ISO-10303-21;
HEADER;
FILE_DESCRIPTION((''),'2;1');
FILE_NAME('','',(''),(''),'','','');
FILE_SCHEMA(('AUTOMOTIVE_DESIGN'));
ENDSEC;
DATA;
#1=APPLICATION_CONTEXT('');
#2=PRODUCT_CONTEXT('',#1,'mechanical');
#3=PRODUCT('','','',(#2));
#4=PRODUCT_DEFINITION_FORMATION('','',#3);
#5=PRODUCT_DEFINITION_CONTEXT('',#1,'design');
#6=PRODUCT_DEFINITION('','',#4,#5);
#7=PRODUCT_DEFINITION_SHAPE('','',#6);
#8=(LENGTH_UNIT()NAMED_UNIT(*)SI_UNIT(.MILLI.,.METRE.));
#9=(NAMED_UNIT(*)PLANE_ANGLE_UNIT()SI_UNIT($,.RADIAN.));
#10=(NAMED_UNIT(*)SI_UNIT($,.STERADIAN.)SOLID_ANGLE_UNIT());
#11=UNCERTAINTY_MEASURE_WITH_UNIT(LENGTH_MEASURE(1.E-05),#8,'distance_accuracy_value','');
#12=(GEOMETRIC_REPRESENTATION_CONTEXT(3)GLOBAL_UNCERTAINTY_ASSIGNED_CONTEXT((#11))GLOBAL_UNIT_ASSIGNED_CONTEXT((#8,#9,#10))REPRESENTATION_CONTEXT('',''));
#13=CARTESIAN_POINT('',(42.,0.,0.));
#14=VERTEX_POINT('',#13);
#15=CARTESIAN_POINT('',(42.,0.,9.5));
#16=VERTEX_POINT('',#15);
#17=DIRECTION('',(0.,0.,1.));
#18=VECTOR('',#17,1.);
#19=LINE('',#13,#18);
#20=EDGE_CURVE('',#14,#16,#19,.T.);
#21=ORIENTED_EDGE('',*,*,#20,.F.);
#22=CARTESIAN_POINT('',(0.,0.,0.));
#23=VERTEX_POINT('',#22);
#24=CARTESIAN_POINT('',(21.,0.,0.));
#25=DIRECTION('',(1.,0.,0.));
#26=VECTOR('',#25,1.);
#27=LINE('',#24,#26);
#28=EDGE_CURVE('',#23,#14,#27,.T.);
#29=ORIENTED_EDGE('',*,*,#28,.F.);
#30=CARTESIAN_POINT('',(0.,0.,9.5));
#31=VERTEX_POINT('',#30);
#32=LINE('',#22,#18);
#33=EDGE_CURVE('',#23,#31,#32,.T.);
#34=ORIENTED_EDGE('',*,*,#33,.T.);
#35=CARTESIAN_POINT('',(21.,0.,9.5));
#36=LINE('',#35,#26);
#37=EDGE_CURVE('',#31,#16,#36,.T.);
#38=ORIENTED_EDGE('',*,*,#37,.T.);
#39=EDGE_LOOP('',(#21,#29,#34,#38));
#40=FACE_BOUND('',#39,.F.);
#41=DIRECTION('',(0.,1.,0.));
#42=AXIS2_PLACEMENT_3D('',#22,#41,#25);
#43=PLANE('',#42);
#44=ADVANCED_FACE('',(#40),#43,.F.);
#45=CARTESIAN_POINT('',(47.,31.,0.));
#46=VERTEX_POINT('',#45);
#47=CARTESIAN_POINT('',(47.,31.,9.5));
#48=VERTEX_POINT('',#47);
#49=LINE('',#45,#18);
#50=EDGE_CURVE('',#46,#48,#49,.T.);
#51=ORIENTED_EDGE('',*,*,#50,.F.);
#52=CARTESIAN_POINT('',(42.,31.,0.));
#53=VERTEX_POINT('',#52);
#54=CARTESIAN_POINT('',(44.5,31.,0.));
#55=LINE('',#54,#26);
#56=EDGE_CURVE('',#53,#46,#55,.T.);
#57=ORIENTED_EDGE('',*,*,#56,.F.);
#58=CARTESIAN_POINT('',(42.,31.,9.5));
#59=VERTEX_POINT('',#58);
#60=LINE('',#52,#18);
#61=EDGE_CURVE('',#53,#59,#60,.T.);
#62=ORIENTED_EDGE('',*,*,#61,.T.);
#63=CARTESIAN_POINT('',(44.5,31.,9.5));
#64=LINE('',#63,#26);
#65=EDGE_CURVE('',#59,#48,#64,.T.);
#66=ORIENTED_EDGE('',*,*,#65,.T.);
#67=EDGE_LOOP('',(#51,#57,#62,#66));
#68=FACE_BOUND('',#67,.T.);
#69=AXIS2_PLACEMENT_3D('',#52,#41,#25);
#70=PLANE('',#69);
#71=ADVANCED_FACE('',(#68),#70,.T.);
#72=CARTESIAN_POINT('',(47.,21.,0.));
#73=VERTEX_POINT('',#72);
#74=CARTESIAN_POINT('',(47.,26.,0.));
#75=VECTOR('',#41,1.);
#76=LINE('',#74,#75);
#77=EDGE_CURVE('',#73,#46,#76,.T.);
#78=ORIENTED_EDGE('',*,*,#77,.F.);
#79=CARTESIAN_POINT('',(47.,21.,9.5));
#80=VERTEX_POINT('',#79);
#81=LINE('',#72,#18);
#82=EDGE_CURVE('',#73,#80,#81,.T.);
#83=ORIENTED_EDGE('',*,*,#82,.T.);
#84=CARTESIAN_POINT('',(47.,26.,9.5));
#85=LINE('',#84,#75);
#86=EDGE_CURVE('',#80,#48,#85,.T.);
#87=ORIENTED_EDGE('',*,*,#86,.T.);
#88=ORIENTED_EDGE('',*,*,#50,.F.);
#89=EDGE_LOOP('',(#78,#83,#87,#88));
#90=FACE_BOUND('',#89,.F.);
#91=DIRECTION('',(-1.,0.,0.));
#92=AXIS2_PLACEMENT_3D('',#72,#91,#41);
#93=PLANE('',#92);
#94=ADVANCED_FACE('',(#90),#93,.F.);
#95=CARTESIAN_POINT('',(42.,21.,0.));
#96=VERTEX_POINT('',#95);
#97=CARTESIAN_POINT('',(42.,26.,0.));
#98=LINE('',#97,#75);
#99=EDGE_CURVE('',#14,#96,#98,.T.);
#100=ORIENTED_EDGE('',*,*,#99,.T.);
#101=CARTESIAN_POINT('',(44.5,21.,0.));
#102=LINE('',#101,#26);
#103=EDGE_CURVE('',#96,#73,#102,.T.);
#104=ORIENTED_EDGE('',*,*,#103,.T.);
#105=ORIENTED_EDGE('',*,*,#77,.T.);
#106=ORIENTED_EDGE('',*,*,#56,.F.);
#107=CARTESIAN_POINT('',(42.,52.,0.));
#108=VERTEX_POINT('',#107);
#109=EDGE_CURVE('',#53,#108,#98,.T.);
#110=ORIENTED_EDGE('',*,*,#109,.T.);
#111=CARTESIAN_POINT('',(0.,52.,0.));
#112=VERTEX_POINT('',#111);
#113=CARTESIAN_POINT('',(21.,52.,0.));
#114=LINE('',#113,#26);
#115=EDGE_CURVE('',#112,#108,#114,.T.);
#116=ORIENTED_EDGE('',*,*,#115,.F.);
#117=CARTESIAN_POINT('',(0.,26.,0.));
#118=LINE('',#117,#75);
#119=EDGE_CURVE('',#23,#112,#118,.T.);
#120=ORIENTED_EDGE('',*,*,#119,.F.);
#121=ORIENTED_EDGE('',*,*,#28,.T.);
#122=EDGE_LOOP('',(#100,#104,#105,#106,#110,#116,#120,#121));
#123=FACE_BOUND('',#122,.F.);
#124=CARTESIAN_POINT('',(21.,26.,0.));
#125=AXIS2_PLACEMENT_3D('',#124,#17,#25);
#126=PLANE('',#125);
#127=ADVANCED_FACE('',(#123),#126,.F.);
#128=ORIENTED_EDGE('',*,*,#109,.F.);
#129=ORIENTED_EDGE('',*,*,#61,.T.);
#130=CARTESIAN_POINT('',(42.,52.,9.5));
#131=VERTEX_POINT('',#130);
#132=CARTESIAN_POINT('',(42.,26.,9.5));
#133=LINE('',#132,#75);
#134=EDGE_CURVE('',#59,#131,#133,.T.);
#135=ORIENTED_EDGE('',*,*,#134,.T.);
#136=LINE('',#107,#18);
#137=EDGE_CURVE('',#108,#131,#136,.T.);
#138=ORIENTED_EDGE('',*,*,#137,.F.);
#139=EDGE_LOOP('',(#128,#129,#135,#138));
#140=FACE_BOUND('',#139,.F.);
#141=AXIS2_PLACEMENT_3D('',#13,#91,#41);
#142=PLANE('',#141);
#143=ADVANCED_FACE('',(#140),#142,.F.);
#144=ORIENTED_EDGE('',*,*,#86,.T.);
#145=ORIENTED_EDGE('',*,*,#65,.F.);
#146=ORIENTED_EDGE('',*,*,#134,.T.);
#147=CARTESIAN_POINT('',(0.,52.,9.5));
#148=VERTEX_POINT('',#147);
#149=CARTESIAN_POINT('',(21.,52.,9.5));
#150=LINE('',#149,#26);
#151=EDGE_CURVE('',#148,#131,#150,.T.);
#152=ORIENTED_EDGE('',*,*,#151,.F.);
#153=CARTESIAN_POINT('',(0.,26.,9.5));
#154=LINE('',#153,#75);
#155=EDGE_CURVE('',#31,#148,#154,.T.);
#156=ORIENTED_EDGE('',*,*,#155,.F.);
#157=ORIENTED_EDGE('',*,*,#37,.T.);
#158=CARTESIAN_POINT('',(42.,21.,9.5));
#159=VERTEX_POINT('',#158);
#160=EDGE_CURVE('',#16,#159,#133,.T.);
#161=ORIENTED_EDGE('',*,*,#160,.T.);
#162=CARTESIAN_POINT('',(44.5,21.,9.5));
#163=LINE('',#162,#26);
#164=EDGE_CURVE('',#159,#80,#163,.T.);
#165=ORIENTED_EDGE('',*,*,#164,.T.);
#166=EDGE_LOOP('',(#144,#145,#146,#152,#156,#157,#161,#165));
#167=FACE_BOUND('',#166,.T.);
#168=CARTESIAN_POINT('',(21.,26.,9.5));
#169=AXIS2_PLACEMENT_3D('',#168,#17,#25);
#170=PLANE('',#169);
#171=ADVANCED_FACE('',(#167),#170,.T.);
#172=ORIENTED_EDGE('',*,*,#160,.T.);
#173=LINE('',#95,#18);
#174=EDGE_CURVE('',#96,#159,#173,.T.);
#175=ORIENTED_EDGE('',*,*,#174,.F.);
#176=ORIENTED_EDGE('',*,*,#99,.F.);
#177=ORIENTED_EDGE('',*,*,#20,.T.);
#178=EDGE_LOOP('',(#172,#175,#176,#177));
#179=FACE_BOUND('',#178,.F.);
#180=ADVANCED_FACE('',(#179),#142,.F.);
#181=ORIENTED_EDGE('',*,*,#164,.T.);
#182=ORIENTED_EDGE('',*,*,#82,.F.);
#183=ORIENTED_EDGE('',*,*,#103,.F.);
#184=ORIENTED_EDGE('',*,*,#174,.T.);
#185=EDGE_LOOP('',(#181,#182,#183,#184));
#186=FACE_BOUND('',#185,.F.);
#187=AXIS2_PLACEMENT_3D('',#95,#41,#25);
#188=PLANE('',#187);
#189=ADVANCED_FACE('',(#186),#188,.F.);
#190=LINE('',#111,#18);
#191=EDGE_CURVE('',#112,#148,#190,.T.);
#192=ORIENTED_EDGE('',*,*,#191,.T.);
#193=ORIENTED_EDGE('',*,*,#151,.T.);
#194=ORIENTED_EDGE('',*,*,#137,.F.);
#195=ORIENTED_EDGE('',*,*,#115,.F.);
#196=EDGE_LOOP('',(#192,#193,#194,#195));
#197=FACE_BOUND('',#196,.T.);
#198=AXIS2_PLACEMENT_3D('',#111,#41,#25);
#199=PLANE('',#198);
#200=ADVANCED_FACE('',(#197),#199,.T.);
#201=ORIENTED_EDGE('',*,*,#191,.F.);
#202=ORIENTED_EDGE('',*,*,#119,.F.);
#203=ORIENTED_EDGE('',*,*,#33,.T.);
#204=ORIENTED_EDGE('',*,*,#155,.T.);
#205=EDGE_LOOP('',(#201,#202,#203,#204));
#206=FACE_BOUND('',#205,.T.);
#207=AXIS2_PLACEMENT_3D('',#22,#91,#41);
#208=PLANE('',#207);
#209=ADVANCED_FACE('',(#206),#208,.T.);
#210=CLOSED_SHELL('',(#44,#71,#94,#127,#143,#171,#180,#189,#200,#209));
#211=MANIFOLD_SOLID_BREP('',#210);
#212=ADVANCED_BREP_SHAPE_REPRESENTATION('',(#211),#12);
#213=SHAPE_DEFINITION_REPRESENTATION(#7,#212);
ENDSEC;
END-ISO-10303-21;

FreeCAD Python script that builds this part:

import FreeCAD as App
import Part
import Sketcher
from FreeCAD import Vector


def add_polygon(sketch, points):
    """Adds a closed chain of lines whose ends are joined by coincident constraints."""
    first, n = sketch.GeometryCount, len(points)
    for a, b in zip(points, points[1:] + points[:1]):
        sketch.addGeometry(Part.LineSegment(App.Vector(*a, 0), App.Vector(*b, 0)), False)
    for i in range(n):
        sketch.addConstraint(Sketcher.Constraint("Coincident", first + i, 2, first + (i + 1) % n, 1))

doc = App.newDocument("Part")
params = doc.addObject("Spreadsheet::Sheet", "Params")
for row, (alias, value) in enumerate([
    ("sketch1_width", "42 mm"),
    ("sketch1_height", "52 mm"),
    ("pad1_length", "9.5 mm"),
    ("sketch2_width", "5 mm"),
    ("sketch2_height", "10 mm"),
    ("pad2_length", "9.5 mm"),
], start=1):
    params.set(f"A{row}", alias)
    params.set(f"B{row}", "=" + value)
    params.setAlias(f"B{row}", alias)

body = doc.addObject("PartDesign::Body", "Body")

sketch1 = doc.addObject("Sketcher::SketchObject", "Sketch")
body.addObject(sketch1)
sketch1.AttachmentSupport = (doc.XY_Plane, [""])
sketch1.MapMode = "FlatFace"
add_polygon(sketch1, [(0, 52), (0, 0), (42, 0), (42, 52)])
sketch1.addConstraint(Sketcher.Constraint("Vertical", 0))
sketch1.addConstraint(Sketcher.Constraint("Horizontal", 1))
sketch1.addConstraint(Sketcher.Constraint("Vertical", 2))
sketch1.addConstraint(Sketcher.Constraint("Horizontal", 3))
sketch1.addConstraint(Sketcher.Constraint("Coincident", 0, 2, -1, 1))
sketch1.addConstraint(Sketcher.Constraint("DistanceX", 1, 1, 1, 2, 42.0))
sketch1.addConstraint(Sketcher.Constraint("DistanceY", 0, 2, 0, 1, 52.0))
sketch1.setExpression("Constraints[9]", "Params.sketch1_width")
sketch1.setExpression("Constraints[10]", "Params.sketch1_height")
pad1 = doc.addObject("PartDesign::Pad", "Pad")
body.addObject(pad1)
pad1.Profile = sketch1
pad1.setExpression("Length", "Params.pad1_length")
body2 = doc.addObject("PartDesign::Body", "Body001")

sketch2 = doc.addObject("Sketcher::SketchObject", "Sketch001")
body2.addObject(sketch2)
sketch2.AttachmentSupport = (doc.getObject("XY_Plane001"), [""])
sketch2.MapMode = "FlatFace"
add_polygon(sketch2, [(42, 31), (42, 21), (47, 21), (47, 31)])
sketch2.addConstraint(Sketcher.Constraint("Vertical", 0))
sketch2.addConstraint(Sketcher.Constraint("Horizontal", 1))
sketch2.addConstraint(Sketcher.Constraint("Vertical", 2))
sketch2.addConstraint(Sketcher.Constraint("Horizontal", 3))
sketch2.addConstraint(Sketcher.Constraint("DistanceX", 1, 1, 1, 2, 5.0))
sketch2.addConstraint(Sketcher.Constraint("DistanceY", 0, 2, 0, 1, 10.0))
sketch2.addConstraint(Sketcher.Constraint("DistanceX", -1, 1, 0, 2, 42.0))
sketch2.addConstraint(Sketcher.Constraint("DistanceY", -1, 1, 0, 2, 21.0))
sketch2.setExpression("Constraints[8]", "Params.sketch2_width")
sketch2.setExpression("Constraints[9]", "Params.sketch2_height")
pad2 = doc.addObject("PartDesign::Pad", "Pad001")
body2.addObject(pad2)
pad2.Profile = sketch2
pad2.setExpression("Length", "Params.pad2_length")
doc.recompute()

boolean = doc.addObject("PartDesign::Boolean", "Boolean")
body2.addObject(boolean)
boolean.Type = "Fuse"
boolean.addObjects([body])

doc.recompute()
